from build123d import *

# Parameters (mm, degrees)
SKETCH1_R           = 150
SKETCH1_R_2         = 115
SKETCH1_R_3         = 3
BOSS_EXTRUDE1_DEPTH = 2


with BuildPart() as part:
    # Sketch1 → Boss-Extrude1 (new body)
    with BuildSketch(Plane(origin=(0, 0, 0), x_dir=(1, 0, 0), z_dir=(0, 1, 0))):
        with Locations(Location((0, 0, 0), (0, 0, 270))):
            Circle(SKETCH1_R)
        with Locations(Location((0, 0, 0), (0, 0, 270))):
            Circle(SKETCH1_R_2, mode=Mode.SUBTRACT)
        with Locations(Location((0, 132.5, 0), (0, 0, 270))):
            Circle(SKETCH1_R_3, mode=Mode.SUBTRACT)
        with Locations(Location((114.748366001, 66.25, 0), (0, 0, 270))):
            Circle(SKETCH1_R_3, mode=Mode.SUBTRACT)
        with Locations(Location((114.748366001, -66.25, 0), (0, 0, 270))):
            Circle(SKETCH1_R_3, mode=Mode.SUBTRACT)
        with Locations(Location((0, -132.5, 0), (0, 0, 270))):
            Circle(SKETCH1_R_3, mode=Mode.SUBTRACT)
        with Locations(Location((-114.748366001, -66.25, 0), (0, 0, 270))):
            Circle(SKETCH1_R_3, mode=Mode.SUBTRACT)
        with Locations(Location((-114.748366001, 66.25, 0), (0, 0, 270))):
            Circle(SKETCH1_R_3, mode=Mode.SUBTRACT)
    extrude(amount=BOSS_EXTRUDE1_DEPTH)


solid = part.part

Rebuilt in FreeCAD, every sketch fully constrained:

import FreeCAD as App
import Part
import Sketcher
from FreeCAD import Vector

doc = App.newDocument("Part")
params = doc.addObject("Spreadsheet::Sheet", "Params")
for row, (alias, value) in enumerate([
    ("sketch1_diameter", "300 mm"),
    ("sketch1_diameter2", "6 mm"),
    ("sketch1_diameter3", "230 mm"),
    ("pad1_length", "2 mm"),
], start=1):
    params.set(f"A{row}", alias)
    params.set(f"B{row}", "=" + value)
    params.setAlias(f"B{row}", alias)

body = doc.addObject("PartDesign::Body", "Body")

sketch1 = body.newObject("Sketcher::SketchObject", "Sketch")
sketch1.AttachmentSupport = (doc.getObject("XZ_Plane"), [""])
sketch1.MapMode = "FlatFace"
sketch1.addGeometry([
    Part.Circle(Vector(0, 0, 0), Vector(0, 0, 1), 150),
    Part.Circle(Vector(-114.7, -66.2, 0), Vector(0, 0, 1), 3),
    Part.Circle(Vector(0, -132.5, 0), Vector(0, 0, 1), 3),
    Part.Circle(Vector(-114.7, 66.2, 0), Vector(0, 0, 1), 3),
    Part.Circle(Vector(0, 0, 0), Vector(0, 0, 1), 115),
    Part.Circle(Vector(114.7, -66.2, 0), Vector(0, 0, 1), 3),
    Part.Circle(Vector(0, 132.5, 0), Vector(0, 0, 1), 3),
    Part.Circle(Vector(114.7, 66.2, 0), Vector(0, 0, 1), 3),
], False)
sketch1.addConstraint([
    Sketcher.Constraint("Coincident", 0, 3, -1, 1),
    Sketcher.Constraint("Coincident", 4, 3, -1, 1),
    Sketcher.Constraint("Equal", 1, 2),
    Sketcher.Constraint("Equal", 2, 3),
    Sketcher.Constraint("Equal", 3, 5),
    Sketcher.Constraint("Equal", 5, 6),
    Sketcher.Constraint("Equal", 6, 7),
    Sketcher.Constraint("Symmetric", 3, 3, 5, 3, -1, 1),
    Sketcher.Constraint("Symmetric", 2, 3, 6, 3, -1, 1),
    Sketcher.Constraint("Symmetric", 1, 3, 7, 3, -1, 1),
    Sketcher.Constraint("Symmetric", 1, 3, 5, 3, -2),
    Sketcher.Constraint("PointOnObject", 2, 3, -2),
    Sketcher.Constraint("Diameter", 0, 300.0),
    Sketcher.Constraint("Diameter", 1, 6.0),
    Sketcher.Constraint("Diameter", 4, 230.0),
    Sketcher.Constraint("DistanceY", 2, 3, -1, 1, 132.5),
    Sketcher.Constraint("DistanceY", 1, 3, 3, 3, 132.5),
    Sketcher.Constraint("DistanceX", 1, 3, -1, 1, 114.748366),
])
sketch1.setExpression("Constraints[12]", "Params.sketch1_diameter")
sketch1.setExpression("Constraints[13]", "Params.sketch1_diameter2")
sketch1.setExpression("Constraints[14]", "Params.sketch1_diameter3")
pad1 = body.newObject("PartDesign::Pad", "Pad")
pad1.Profile = sketch1
pad1.setExpression("Length", "Params.pad1_length")
pad1.Reversed = True

doc.recompute()
